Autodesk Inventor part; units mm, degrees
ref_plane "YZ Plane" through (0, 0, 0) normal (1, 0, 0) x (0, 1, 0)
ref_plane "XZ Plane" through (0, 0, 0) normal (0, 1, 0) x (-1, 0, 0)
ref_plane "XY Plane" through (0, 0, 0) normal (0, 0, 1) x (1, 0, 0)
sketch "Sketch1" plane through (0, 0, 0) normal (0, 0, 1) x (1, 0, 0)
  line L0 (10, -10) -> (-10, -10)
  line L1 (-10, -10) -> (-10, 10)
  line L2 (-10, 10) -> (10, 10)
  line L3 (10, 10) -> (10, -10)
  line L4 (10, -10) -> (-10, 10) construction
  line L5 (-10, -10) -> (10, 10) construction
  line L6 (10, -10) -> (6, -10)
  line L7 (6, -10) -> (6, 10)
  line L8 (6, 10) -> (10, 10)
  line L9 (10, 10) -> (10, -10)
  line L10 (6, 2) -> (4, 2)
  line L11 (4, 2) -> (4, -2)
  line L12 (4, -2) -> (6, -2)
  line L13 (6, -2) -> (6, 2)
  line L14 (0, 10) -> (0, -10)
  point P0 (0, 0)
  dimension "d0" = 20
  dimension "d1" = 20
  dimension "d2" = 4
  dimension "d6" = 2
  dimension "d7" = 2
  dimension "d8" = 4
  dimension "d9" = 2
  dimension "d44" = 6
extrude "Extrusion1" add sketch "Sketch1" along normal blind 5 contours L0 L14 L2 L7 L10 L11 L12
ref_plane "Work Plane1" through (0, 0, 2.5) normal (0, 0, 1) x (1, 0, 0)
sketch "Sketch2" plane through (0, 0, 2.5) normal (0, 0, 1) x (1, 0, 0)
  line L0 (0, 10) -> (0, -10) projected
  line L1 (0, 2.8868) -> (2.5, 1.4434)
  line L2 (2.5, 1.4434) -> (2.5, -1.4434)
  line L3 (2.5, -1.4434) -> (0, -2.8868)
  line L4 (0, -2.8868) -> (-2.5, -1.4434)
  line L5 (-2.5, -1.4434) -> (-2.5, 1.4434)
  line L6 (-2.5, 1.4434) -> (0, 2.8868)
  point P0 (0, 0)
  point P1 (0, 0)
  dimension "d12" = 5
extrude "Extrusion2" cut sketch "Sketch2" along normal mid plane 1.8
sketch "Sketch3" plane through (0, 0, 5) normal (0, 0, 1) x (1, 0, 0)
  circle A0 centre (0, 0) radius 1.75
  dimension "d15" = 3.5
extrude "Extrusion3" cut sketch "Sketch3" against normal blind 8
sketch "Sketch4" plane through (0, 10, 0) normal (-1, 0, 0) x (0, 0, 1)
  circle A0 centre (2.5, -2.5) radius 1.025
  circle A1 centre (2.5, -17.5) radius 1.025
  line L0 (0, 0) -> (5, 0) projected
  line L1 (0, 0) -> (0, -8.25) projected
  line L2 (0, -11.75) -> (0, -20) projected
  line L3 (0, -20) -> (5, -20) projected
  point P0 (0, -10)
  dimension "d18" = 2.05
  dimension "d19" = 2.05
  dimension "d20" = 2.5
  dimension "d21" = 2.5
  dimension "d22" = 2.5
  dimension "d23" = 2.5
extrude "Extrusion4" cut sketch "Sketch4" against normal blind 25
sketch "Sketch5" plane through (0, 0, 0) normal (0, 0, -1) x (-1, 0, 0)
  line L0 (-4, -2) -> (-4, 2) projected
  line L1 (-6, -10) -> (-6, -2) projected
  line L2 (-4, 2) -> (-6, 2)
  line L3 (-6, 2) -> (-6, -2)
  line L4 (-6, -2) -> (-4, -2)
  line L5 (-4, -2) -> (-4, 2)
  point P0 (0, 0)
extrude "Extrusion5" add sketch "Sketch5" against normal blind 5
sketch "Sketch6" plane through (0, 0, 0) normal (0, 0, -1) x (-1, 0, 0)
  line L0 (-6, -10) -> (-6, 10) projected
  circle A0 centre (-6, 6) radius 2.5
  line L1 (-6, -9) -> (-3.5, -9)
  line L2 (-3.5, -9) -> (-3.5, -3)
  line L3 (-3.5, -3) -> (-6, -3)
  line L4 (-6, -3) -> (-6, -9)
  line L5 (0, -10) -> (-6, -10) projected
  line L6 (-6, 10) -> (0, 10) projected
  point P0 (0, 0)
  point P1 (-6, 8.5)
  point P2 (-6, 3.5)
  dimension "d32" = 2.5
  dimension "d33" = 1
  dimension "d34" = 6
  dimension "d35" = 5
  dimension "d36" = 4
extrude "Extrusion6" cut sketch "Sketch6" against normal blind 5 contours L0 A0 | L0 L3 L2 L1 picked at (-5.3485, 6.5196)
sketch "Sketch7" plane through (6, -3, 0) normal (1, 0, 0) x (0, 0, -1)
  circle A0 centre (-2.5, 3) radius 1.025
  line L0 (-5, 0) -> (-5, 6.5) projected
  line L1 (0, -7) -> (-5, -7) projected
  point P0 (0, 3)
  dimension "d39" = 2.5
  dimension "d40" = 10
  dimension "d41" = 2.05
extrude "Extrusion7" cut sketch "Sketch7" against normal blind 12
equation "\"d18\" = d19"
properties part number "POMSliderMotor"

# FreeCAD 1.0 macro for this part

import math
import FreeCAD as App
import Part
import Sketcher

V = App.Vector
Q = App.Units.Quantity


def add_polygon(sketch, points):
    """Adds a closed chain of lines whose ends are joined by coincident constraints."""
    first, n = sketch.GeometryCount, len(points)
    for a, b in zip(points, points[1:] + points[:1]):
        sketch.addGeometry(Part.LineSegment(App.Vector(*a, 0), App.Vector(*b, 0)), False)
    for i in range(n):
        sketch.addConstraint(Sketcher.Constraint("Coincident", first + i, 2, first + (i + 1) % n, 1))

doc = App.newDocument("Part")
body = doc.addObject("PartDesign::Body", "Body")

# Sketch on XY plane
sketch1 = body.newObject("Sketcher::SketchObject", "Sketch")
sketch1.AttachmentSupport = (doc.getObject("XY_Plane"), [""])
sketch1.MapMode = "FlatFace"
add_polygon(sketch1, [(0, -10), (6, -10), (6, -2), (4, -2), (4, 2), (6, 2), (6, 10), (0, 10)])  # lines 0-7
sketch1.addConstraint([
    Sketcher.Constraint("Horizontal", 0),
    Sketcher.Constraint("Vertical", 1),
    Sketcher.Constraint("Horizontal", 2),
    Sketcher.Constraint("Vertical", 3),
    Sketcher.Constraint("Horizontal", 4),
    Sketcher.Constraint("Vertical", 5),
    Sketcher.Constraint("Horizontal", 6),
    Sketcher.Constraint("Vertical", 7),
    Sketcher.Constraint("Symmetric", 6, 2, 7, 2, -1, 1),
    Sketcher.Constraint("Symmetric", 1, 2, 4, 2, -1),
    Sketcher.Constraint("DistanceX", 0, 1, 0, 2, Q("6 mm")),
    Sketcher.Constraint("DistanceX", 2, 2, 2, 1, Q("2 mm")),
    Sketcher.Constraint("DistanceY", 3, 1, 3, 2, Q("4 mm")),
    Sketcher.Constraint("DistanceY", 7, 2, 7, 1, Q("20 mm")),
])
pad1 = body.newObject("PartDesign::Pad", "Pad")
pad1.Profile = sketch1
pad1.Length = 5

# Sketch on XY plane
sketch2 = body.newObject("Sketcher::SketchObject", "Sketch001")
sketch2.AttachmentSupport = (doc.getObject("XY_Plane"), [""])
sketch2.MapMode = "FlatFace"
sketch2.AttachmentOffset = App.Placement(V(0, 0, 2.5), App.Rotation())
add_polygon(sketch2, [(2.5, 1.4434), (0, 2.8868), (-2.5, 1.4434), (-2.5, -1.4434), (0, -2.8868), (2.5, -1.4434)])  # lines 0-5
sketch2.addConstraint([
    Sketcher.Constraint("Vertical", 2),
    Sketcher.Constraint("Vertical", 5),
    Sketcher.Constraint("Symmetric", 0, 2, 3, 2, -1, 1),
    Sketcher.Constraint("Symmetric", 1, 2, 4, 2, -1, 1),
    Sketcher.Constraint("PointOnObject", 0, 2, -2),
    Sketcher.Constraint("Parallel", 0, 3),
    Sketcher.Constraint("Horizontal", 2, 2, 4, 2),
    Sketcher.Constraint("DistanceX", 2, 2, 4, 2, Q("5 mm")),
    Sketcher.Constraint("Angle", 0, Q("149.9996 deg")),
    Sketcher.Constraint("DistanceY", 2, 2, 2, 1, Q("2.8868 mm")),
])
pocket1 = body.newObject("PartDesign::Pocket", "Pocket")
pocket1.Profile = sketch2
pocket1.Length = 1.8
pocket1.Midplane = True

# Sketch on XY plane
sketch3 = body.newObject("Sketcher::SketchObject", "Sketch002")
sketch3.AttachmentSupport = (doc.getObject("XY_Plane"), [""])
sketch3.MapMode = "FlatFace"
sketch3.AttachmentOffset = App.Placement(V(0, 0, 5), App.Rotation())
sketch3.addGeometry(Part.Circle(V(0, 0, 0), V(0, 0, 1), 1.75), False)
sketch3.addConstraint([
    Sketcher.Constraint("Coincident", 0, 3, -1, 1),
    Sketcher.Constraint("Diameter", 0, Q("3.5 mm")),
])
pocket2 = body.newObject("PartDesign::Pocket", "Pocket001")
pocket2.Profile = sketch3
pocket2.Length = 8

# Sketch on YZ plane
sketch4 = body.newObject("Sketcher::SketchObject", "Sketch003")
sketch4.AttachmentSupport = (doc.getObject("YZ_Plane"), [""])
sketch4.MapMode = "FlatFace"
sketch4.addGeometry([
    Part.Circle(V(7.5, 2.5, 0), V(0, 0, 1), 1.025),
    Part.Circle(V(-7.5, 2.5, 0), V(0, 0, 1), 1.025),
], False)
sketch4.addConstraint([
    Sketcher.Constraint("Equal", 0, 1),
    Sketcher.Constraint("Symmetric", 0, 3, 1, 3, -2),
    Sketcher.Constraint("Diameter", 0, Q("2.05 mm")),
    Sketcher.Constraint("DistanceY", -1, 1, 0, 3, Q("2.5 mm")),
    Sketcher.Constraint("DistanceX", 1, 3, 0, 3, Q("15 mm")),
])
pocket3 = body.newObject("PartDesign::Pocket", "Pocket002")
pocket3.Profile = sketch4
pocket3.Length = 25
pocket3.Reversed = True

# Sketch on XY plane
sketch5 = body.newObject("Sketcher::SketchObject", "Sketch004")
sketch5.AttachmentSupport = (doc.getObject("XY_Plane"), [""])
sketch5.MapMode = "FlatFace"
add_polygon(sketch5, [(6, -2), (4, -2), (4, 2), (6, 2)])  # lines 0-3
sketch5.addConstraint([
    Sketcher.Constraint("Horizontal", 0),
    Sketcher.Constraint("Vertical", 1),
    Sketcher.Constraint("Horizontal", 2),
    Sketcher.Constraint("Vertical", 3),
    Sketcher.Constraint("DistanceX", 0, 2, 0, 1, Q("2 mm")),
    Sketcher.Constraint("DistanceY", 1, 1, 1, 2, Q("4 mm")),
    Sketcher.Constraint("DistanceX", -1, 1, 0, 2, Q("4 mm")),
    Sketcher.Constraint("DistanceY", 0, 2, -1, 1, Q("2 mm")),
])
pad2 = body.newObject("PartDesign::Pad", "Pad001")
pad2.Profile = sketch5
pad2.Length = 5

# Sketch on XY plane
sketch6 = body.newObject("Sketcher::SketchObject", "Sketch005")
sketch6.AttachmentSupport = (doc.getObject("XY_Plane"), [""])
sketch6.MapMode = "FlatFace"
sketch6.addGeometry(Part.LineSegment(V(6, 8.5, 0), V(6, 3.5, 0)), False)  # 0
sketch6.addGeometry(Part.ArcOfCircle(Part.Circle(V(6, 6, 0), V(0, 0, 1), 2.5), math.radians(90), math.radians(270)), False)  # 1
add_polygon(sketch6, [(6, -3), (6, -9), (3.5, -9), (3.5, -3)])  # lines 2-5
sketch6.addConstraint([
    Sketcher.Constraint("Coincident", 0, 1, 1, 1),
    Sketcher.Constraint("Coincident", 1, 2, 0, 2),
    Sketcher.Constraint("Vertical", 0),
    Sketcher.Constraint("Vertical", 2),
    Sketcher.Constraint("Horizontal", 3),
    Sketcher.Constraint("Vertical", 4),
    Sketcher.Constraint("Horizontal", 5),
    Sketcher.Constraint("Vertical", 1, 3, 0, 1),
    Sketcher.Constraint("Vertical", 1, 2, 2, 2),
    Sketcher.Constraint("Radius", 1, Q("2.5 mm")),
    Sketcher.Constraint("DistanceY", 2, 2, 2, 1, Q("6 mm")),
    Sketcher.Constraint("DistanceX", 3, 2, 3, 1, Q("2.5 mm")),
    Sketcher.Constraint("DistanceX", -1, 1, 1, 3, Q("6 mm")),
    Sketcher.Constraint("DistanceY", -1, 1, 1, 3, Q("6 mm")),
    Sketcher.Constraint("DistanceY", 2, 2, -1, 1, Q("9 mm")),
])
pocket4 = body.newObject("PartDesign::Pocket", "Pocket003")
pocket4.Profile = sketch6
pocket4.Length = 5
pocket4.Reversed = True

# Sketch on YZ plane
sketch7 = body.newObject("Sketcher::SketchObject", "Sketch006")
sketch7.AttachmentSupport = (doc.getObject("YZ_Plane"), [""])
sketch7.MapMode = "FlatFace"
sketch7.AttachmentOffset = App.Placement(V(0, 0, 6), App.Rotation())
sketch7.addGeometry(Part.Circle(V(0, 2.5, 0), V(0, 0, 1), 1.025), False)
sketch7.addConstraint([
    Sketcher.Constraint("PointOnObject", 0, 3, -2),
    Sketcher.Constraint("Diameter", 0, Q("2.05 mm")),
    Sketcher.Constraint("DistanceY", -1, 1, 0, 3, Q("2.5 mm")),
])
pocket5 = body.newObject("PartDesign::Pocket", "Pocket004")
pocket5.Profile = sketch7
pocket5.Length = 12

doc.recompute()
